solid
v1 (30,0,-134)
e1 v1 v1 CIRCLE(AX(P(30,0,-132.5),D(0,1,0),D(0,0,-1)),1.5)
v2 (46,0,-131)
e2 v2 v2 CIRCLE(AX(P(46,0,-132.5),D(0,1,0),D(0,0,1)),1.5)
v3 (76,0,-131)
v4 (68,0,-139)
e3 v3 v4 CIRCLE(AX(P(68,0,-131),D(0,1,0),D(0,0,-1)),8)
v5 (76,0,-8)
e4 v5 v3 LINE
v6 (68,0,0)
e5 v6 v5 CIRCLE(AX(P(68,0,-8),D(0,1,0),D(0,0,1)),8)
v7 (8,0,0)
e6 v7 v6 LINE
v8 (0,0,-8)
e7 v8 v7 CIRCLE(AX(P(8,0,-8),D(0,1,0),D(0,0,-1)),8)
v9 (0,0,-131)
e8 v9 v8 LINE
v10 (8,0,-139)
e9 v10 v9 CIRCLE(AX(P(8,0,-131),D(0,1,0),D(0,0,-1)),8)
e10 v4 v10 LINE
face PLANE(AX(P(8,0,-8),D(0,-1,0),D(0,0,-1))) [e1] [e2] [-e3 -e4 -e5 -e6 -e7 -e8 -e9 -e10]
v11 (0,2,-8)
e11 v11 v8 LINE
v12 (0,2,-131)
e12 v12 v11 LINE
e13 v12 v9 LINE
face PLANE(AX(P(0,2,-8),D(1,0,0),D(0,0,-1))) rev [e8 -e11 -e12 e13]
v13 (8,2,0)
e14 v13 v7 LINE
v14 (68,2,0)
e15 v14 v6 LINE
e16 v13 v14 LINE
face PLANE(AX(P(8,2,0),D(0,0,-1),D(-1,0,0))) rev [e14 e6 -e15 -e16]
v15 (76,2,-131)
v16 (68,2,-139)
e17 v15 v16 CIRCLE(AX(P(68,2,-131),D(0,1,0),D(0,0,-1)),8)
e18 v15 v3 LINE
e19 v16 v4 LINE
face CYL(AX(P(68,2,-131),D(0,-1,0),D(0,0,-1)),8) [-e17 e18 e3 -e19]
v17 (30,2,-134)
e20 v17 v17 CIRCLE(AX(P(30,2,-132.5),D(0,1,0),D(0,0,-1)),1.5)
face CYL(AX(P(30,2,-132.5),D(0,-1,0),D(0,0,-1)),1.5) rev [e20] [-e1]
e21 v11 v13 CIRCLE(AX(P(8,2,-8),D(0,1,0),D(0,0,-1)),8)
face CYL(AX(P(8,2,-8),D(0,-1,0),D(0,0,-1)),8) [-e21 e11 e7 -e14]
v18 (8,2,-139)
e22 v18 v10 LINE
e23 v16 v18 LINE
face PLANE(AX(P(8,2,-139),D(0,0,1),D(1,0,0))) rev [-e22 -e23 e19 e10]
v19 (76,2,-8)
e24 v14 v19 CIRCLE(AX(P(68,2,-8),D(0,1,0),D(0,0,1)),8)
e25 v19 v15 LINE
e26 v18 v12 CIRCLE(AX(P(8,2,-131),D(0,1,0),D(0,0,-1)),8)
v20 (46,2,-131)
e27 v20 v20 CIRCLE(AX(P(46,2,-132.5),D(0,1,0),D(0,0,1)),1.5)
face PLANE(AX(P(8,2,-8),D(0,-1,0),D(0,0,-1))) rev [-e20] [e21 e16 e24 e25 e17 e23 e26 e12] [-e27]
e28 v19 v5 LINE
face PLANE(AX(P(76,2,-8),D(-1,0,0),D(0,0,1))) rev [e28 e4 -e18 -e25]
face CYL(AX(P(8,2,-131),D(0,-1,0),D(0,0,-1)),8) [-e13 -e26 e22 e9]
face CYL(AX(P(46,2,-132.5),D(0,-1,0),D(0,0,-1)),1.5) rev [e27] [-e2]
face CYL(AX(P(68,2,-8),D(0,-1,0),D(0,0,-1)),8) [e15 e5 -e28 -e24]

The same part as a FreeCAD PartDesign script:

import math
import FreeCAD as App
import Part
import Sketcher

V = App.Vector

doc = App.newDocument("Part")
body = doc.addObject("PartDesign::Body", "Body")

# Sketch on XZ plane
sketch1 = body.newObject("Sketcher::SketchObject", "Sketch")
sketch1.AttachmentSupport = (doc.getObject("XZ_Plane"), [""])
sketch1.MapMode = "FlatFace"
sketch1.addGeometry(Part.LineSegment(V(8, 0, 0), V(68, 0, 0)), False)
sketch1.addGeometry(Part.ArcOfCircle(Part.Circle(V(68, -8, 0), V(0, 0, 1), 8), math.radians(0), math.radians(90)), False)
sketch1.addGeometry(Part.LineSegment(V(76, -8, 0), V(76, -131, 0)), False)
sketch1.addGeometry(Part.ArcOfCircle(Part.Circle(V(68, -131, 0), V(0, 0, 1), 8), math.radians(-90), math.radians(0)), False)
sketch1.addGeometry(Part.LineSegment(V(68, -139, 0), V(8, -139, 0)), False)
sketch1.addGeometry(Part.ArcOfCircle(Part.Circle(V(8, -131, 0), V(0, 0, 1), 8), math.radians(-180), math.radians(-90)), False)
sketch1.addGeometry(Part.LineSegment(V(0, -131, 0), V(0, -8, 0)), False)
sketch1.addGeometry(Part.ArcOfCircle(Part.Circle(V(8, -8, 0), V(0, 0, 1), 8), math.radians(90), math.radians(180)), False)
sketch1.addGeometry(Part.Circle(V(30, -132.5, 0), V(0, 0, 1), 1.5), False)
sketch1.addGeometry(Part.Circle(V(46, -132.5, 0), V(0, 0, 1), 1.5), False)
sketch1.addConstraint(Sketcher.Constraint("Tangent", 0, 2, 1, 2))
sketch1.addConstraint(Sketcher.Constraint("Tangent", 1, 1, 2, 1))
sketch1.addConstraint(Sketcher.Constraint("Tangent", 2, 2, 3, 2))
sketch1.addConstraint(Sketcher.Constraint("Tangent", 3, 1, 4, 1))
sketch1.addConstraint(Sketcher.Constraint("Tangent", 4, 2, 5, 2))
sketch1.addConstraint(Sketcher.Constraint("Tangent", 5, 1, 6, 1))
sketch1.addConstraint(Sketcher.Constraint("Tangent", 6, 2, 7, 2))
sketch1.addConstraint(Sketcher.Constraint("Tangent", 7, 1, 0, 1))
sketch1.addConstraint(Sketcher.Constraint("Horizontal", 0))
sketch1.addConstraint(Sketcher.Constraint("Vertical", 2))
sketch1.addConstraint(Sketcher.Constraint("Horizontal", 4))
sketch1.addConstraint(Sketcher.Constraint("Vertical", 6))
sketch1.addConstraint(Sketcher.Constraint("Equal", 1, 3))
sketch1.addConstraint(Sketcher.Constraint("Equal", 3, 5))
sketch1.addConstraint(Sketcher.Constraint("Equal", 5, 7))
sketch1.addConstraint(Sketcher.Constraint("Equal", 8, 9))
sketch1.addConstraint(Sketcher.Constraint("PointOnObject", 0, 2, -1))
sketch1.addConstraint(Sketcher.Constraint("PointOnObject", 5, 1, -2))
sketch1.addConstraint(Sketcher.Constraint("Horizontal", 8, 3, 9, 3))
sketch1.addConstraint(Sketcher.Constraint("Diameter", 8, 3.0))
sketch1.addConstraint(Sketcher.Constraint("Radius", 1, 8.0))
sketch1.addConstraint(Sketcher.Constraint("DistanceX", 0, 1, 0, 2, 60.0))
sketch1.addConstraint(Sketcher.Constraint("DistanceY", 2, 2, 2, 1, 123.0))
sketch1.addConstraint(Sketcher.Constraint("DistanceX", -1, 1, 8, 3, 30.0))
sketch1.addConstraint(Sketcher.Constraint("DistanceX", -1, 1, 9, 3, 46.0))
sketch1.addConstraint(Sketcher.Constraint("DistanceY", 8, 3, -1, 1, 132.5))
pad1 = body.newObject("PartDesign::Pad", "Pad")
pad1.Profile = sketch1
pad1.Length = 2
pad1.Reversed = True

doc.recompute()
